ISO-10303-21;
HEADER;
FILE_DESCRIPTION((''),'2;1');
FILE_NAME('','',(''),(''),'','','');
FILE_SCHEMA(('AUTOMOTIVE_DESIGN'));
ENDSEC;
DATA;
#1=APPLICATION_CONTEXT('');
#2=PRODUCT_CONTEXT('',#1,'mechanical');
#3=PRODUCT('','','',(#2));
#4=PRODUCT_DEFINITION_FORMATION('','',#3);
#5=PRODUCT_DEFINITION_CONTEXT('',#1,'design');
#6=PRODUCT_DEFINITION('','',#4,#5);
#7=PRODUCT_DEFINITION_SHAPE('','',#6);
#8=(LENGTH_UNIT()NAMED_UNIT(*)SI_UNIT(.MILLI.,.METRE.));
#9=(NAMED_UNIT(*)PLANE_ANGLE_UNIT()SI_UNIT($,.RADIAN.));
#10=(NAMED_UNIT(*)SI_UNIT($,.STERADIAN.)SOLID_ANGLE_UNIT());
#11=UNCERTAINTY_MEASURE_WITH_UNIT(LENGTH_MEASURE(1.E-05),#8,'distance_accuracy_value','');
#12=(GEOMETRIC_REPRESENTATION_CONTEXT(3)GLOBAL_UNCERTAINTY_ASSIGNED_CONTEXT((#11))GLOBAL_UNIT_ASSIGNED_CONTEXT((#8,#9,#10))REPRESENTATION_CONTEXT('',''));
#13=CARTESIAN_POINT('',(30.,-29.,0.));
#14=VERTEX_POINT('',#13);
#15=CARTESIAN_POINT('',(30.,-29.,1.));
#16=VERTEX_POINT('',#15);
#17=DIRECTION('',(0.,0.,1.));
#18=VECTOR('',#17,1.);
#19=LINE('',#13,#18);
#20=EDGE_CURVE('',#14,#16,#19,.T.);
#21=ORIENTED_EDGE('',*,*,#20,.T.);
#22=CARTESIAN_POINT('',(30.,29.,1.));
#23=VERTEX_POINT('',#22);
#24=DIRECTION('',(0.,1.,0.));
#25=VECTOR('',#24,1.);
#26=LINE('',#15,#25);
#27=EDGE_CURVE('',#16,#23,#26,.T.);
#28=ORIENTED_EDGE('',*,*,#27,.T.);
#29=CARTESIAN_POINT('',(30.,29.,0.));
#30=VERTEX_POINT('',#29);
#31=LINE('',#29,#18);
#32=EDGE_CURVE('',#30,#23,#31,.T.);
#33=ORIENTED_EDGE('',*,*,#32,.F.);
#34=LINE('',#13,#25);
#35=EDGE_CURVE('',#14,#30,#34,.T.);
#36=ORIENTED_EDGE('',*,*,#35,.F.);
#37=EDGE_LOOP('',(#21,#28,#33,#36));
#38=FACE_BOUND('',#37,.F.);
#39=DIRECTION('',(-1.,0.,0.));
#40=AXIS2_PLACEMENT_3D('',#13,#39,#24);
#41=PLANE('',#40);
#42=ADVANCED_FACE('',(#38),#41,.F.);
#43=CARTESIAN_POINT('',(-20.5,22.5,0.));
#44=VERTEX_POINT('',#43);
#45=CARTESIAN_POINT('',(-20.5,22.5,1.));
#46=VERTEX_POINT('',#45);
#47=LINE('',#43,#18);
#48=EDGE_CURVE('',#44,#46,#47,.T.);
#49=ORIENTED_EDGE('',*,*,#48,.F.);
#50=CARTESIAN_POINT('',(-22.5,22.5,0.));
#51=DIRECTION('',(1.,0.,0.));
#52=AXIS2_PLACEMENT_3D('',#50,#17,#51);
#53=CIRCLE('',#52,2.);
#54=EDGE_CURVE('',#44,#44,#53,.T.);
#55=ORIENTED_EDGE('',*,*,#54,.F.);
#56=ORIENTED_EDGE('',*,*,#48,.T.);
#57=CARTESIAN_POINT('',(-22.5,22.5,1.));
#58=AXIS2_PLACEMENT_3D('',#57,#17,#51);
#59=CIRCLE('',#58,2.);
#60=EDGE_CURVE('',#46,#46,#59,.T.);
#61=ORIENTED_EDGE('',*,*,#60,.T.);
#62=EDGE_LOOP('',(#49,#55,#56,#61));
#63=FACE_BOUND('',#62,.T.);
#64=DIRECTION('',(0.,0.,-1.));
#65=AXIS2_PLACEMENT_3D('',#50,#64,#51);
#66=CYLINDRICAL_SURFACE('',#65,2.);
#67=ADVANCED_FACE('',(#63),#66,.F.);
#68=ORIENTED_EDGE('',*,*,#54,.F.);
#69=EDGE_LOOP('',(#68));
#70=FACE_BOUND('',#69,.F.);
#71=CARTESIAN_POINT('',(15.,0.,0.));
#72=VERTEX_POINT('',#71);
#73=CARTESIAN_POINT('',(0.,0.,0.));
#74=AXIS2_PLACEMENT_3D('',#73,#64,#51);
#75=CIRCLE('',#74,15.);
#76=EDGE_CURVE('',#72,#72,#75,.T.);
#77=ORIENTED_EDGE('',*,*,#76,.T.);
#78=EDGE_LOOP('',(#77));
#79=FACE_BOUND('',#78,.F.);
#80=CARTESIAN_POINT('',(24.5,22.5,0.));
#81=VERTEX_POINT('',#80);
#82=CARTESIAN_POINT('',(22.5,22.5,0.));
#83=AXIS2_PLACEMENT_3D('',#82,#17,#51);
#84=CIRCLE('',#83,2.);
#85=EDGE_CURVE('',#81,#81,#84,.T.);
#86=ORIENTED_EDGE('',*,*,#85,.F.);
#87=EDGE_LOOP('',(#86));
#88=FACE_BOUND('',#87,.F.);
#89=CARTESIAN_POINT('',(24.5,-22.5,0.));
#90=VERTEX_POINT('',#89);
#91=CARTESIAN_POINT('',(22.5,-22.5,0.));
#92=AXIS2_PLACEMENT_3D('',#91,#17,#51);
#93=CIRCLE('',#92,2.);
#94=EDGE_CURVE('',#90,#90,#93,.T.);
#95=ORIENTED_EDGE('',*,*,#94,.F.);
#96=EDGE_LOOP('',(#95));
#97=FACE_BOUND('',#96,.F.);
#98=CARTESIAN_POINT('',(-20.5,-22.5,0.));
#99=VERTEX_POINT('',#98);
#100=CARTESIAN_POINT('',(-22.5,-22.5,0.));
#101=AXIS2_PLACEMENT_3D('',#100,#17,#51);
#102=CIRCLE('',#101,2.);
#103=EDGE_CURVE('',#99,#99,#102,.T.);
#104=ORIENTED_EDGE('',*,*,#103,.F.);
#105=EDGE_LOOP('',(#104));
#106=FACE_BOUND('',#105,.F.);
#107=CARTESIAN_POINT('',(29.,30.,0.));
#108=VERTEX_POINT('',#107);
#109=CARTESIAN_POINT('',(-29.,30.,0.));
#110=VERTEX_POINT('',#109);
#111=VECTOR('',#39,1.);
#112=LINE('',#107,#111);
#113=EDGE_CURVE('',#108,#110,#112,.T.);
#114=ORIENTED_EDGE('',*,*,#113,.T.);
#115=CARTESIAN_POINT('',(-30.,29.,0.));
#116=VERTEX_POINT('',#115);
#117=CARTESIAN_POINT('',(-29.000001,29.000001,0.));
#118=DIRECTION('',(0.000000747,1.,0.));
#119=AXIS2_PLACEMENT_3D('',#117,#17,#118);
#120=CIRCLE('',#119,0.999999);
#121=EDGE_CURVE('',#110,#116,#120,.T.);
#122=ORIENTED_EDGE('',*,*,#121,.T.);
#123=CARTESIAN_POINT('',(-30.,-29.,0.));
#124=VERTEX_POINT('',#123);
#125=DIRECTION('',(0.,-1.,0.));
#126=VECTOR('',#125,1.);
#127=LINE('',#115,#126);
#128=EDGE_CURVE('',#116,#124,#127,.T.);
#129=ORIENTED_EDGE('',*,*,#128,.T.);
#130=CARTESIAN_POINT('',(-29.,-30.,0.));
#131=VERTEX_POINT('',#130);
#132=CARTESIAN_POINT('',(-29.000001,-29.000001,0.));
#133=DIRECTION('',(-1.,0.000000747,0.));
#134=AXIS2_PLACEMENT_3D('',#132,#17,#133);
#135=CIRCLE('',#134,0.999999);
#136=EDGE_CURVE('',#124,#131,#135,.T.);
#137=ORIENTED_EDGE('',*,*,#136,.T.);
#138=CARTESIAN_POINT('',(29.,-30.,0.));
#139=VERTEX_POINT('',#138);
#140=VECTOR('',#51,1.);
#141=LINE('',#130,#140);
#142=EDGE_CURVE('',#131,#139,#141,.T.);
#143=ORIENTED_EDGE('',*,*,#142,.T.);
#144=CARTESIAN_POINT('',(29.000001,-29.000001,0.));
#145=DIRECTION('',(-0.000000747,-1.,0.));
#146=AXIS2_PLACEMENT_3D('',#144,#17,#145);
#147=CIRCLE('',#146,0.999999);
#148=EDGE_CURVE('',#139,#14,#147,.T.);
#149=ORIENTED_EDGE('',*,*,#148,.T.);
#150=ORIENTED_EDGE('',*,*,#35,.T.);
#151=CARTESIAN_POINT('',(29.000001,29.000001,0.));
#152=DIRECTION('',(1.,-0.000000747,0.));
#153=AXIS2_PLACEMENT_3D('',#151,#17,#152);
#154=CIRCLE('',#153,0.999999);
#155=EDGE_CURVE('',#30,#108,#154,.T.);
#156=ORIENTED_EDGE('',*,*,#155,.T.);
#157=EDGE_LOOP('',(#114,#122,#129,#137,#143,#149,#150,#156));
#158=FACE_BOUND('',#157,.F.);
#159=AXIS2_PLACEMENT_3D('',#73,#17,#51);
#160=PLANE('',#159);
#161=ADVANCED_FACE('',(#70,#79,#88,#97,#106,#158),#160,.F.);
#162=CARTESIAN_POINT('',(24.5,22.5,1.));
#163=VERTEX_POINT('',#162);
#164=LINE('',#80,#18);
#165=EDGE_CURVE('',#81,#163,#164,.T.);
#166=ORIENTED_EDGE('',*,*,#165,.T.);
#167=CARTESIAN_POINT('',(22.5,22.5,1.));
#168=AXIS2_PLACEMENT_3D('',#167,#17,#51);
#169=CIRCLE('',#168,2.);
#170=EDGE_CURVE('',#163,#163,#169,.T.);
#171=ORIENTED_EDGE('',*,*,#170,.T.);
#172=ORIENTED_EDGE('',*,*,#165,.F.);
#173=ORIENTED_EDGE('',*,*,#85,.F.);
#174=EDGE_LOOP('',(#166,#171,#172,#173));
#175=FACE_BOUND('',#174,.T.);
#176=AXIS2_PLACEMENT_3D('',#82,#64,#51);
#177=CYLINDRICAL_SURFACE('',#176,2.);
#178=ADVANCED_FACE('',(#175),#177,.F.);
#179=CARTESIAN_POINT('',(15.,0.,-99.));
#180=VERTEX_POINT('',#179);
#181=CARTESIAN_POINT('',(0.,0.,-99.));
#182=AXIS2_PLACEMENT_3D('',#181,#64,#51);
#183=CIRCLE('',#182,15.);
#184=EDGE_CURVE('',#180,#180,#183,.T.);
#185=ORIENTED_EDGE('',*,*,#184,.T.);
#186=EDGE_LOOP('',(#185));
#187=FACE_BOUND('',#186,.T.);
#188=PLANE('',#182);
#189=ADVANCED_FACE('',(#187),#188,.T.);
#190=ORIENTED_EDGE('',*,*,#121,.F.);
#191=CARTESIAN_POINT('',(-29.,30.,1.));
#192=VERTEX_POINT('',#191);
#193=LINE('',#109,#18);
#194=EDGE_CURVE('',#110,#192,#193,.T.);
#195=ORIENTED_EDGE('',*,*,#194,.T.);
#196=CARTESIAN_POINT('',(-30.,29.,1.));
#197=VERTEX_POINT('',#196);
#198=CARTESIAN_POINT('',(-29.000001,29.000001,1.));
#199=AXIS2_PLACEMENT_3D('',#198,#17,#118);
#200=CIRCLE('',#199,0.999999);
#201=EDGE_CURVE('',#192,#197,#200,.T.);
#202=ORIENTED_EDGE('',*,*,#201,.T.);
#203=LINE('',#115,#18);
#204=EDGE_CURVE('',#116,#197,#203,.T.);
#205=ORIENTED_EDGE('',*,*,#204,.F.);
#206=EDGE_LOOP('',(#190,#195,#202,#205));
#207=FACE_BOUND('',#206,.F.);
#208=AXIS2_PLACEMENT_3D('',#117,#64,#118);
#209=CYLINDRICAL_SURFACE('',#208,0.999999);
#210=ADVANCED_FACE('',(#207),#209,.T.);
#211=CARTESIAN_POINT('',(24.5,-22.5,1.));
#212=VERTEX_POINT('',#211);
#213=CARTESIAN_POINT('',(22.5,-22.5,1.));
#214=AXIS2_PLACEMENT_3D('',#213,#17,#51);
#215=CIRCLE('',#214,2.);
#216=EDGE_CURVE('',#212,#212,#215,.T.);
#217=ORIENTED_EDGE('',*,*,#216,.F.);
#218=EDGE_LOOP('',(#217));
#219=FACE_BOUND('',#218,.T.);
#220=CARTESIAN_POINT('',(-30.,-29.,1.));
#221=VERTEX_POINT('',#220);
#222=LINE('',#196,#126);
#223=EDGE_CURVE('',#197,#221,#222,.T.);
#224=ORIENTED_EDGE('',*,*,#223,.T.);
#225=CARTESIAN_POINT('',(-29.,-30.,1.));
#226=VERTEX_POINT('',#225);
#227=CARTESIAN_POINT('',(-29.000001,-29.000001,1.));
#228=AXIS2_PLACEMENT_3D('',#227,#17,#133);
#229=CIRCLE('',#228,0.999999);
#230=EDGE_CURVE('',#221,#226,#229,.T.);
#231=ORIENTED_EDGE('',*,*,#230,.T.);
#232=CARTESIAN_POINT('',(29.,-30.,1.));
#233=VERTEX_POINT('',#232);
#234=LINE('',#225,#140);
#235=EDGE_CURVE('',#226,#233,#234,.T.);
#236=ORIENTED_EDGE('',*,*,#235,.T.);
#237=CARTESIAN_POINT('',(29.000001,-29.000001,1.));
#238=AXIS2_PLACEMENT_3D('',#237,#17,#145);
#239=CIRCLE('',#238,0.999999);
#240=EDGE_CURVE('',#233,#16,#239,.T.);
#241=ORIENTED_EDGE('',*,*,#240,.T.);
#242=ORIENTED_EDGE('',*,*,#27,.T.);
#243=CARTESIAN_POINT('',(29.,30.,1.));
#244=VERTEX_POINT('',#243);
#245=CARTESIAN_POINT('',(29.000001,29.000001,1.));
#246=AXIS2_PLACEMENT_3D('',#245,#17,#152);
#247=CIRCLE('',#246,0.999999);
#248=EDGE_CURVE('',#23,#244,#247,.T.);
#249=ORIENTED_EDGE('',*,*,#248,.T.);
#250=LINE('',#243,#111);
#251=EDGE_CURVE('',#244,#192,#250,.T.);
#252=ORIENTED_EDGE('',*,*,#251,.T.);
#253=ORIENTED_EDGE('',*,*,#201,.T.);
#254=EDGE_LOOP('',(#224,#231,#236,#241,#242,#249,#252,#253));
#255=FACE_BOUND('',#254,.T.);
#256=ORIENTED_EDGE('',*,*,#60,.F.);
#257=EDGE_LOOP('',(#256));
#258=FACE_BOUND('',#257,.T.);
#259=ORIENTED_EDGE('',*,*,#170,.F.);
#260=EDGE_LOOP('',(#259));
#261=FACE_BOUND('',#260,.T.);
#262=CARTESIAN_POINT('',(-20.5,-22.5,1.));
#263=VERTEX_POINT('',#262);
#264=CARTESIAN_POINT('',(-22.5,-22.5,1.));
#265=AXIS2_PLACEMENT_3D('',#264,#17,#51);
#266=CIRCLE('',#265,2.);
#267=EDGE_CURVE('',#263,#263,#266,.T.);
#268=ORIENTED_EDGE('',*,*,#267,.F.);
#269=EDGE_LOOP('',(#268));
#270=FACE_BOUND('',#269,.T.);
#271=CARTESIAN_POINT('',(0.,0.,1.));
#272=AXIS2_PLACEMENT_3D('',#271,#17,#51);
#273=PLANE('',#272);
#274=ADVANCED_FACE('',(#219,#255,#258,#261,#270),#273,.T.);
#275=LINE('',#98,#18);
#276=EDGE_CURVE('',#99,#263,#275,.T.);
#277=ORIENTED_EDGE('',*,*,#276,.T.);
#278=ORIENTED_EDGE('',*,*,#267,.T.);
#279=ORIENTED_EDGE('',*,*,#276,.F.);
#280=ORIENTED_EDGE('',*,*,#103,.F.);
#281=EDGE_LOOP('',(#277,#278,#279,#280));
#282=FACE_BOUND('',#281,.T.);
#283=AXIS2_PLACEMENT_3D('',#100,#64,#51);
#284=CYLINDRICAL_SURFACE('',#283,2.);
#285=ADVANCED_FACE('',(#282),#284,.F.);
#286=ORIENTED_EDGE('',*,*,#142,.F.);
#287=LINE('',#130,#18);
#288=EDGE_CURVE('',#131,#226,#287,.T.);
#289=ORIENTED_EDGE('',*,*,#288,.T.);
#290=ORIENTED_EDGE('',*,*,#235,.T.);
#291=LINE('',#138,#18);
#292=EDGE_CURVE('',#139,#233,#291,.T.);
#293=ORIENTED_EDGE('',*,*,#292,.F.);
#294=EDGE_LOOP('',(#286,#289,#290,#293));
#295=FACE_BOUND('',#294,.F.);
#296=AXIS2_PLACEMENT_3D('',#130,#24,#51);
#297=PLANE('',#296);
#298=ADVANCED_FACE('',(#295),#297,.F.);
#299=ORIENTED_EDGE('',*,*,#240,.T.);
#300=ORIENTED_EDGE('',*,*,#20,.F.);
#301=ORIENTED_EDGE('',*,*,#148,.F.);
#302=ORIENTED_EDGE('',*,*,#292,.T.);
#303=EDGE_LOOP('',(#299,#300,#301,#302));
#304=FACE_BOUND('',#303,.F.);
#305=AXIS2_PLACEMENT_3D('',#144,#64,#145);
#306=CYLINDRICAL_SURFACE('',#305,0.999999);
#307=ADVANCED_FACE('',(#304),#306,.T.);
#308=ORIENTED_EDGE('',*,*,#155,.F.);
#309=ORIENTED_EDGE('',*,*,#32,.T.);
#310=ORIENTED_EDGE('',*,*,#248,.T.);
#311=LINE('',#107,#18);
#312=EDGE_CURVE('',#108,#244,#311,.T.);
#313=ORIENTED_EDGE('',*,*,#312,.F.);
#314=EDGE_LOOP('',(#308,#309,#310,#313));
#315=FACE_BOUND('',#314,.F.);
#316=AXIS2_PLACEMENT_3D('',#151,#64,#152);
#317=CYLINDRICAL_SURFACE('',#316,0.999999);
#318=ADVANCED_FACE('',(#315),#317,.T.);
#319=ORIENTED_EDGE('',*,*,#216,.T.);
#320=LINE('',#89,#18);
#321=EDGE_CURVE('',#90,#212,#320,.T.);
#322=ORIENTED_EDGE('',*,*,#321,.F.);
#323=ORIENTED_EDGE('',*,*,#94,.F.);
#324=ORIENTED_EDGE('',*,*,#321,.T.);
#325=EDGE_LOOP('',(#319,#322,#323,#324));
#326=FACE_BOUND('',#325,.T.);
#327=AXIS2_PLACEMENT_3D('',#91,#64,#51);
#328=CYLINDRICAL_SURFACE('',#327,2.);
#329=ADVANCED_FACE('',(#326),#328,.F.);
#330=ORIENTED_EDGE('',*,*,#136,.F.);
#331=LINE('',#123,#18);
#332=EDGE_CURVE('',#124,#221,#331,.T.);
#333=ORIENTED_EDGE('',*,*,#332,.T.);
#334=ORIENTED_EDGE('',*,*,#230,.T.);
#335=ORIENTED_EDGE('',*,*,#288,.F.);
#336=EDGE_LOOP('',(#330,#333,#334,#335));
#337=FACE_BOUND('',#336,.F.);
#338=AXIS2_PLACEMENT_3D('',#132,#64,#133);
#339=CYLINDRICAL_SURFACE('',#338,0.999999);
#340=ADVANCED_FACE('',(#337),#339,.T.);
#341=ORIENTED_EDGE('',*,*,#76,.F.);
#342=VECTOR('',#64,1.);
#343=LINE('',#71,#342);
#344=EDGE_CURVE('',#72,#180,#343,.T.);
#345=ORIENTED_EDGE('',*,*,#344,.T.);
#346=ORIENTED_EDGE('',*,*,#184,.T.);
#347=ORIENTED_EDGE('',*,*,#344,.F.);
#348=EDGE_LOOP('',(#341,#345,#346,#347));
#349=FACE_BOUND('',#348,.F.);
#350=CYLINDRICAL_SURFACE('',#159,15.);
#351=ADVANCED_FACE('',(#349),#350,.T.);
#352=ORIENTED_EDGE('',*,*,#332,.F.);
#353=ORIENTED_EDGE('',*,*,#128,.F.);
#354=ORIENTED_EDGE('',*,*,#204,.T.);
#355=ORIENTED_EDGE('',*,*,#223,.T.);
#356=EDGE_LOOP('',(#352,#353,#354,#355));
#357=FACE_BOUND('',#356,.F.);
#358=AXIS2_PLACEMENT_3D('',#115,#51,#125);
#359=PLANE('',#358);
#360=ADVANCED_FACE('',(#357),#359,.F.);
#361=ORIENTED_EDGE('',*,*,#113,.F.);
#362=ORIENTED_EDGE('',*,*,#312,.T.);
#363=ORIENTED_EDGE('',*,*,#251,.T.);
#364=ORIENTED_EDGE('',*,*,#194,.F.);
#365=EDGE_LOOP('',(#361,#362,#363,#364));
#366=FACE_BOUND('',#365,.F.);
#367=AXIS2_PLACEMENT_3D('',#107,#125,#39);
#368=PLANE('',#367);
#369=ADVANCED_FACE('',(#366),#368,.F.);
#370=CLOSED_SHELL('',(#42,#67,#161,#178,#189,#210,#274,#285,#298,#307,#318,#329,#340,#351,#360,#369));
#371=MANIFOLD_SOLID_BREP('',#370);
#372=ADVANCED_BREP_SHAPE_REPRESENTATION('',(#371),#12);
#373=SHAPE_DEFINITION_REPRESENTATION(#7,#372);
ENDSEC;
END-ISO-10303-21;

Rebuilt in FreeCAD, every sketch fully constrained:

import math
import FreeCAD as App
import Part
import Sketcher
from FreeCAD import Vector

doc = App.newDocument("Part")
body = doc.addObject("PartDesign::Body", "Body")

# Sketch on XY plane
sketch1 = body.newObject("Sketcher::SketchObject", "Sketch")
sketch1.AttachmentSupport = (doc.getObject("XY_Plane"), [""])
sketch1.MapMode = "FlatFace"
sketch1.addGeometry(Part.ArcOfCircle(Part.Circle(Vector(-29, -29, 0), Vector(0, 0, 1), 1), math.radians(180), math.radians(270)), False)
sketch1.addGeometry(Part.LineSegment(Vector(-29, -30, 0), Vector(29, -30, 0)), False)
sketch1.addGeometry(Part.ArcOfCircle(Part.Circle(Vector(29, -29, 0), Vector(0, 0, 1), 1), math.radians(-90), math.radians(0)), False)
sketch1.addGeometry(Part.LineSegment(Vector(30, -29, 0), Vector(30, 29, 0)), False)
sketch1.addGeometry(Part.ArcOfCircle(Part.Circle(Vector(29, 29, 0), Vector(0, 0, 1), 1), math.radians(0), math.radians(90)), False)
sketch1.addGeometry(Part.LineSegment(Vector(29, 30, 0), Vector(-29, 30, 0)), False)
sketch1.addGeometry(Part.ArcOfCircle(Part.Circle(Vector(-29, 29, 0), Vector(0, 0, 1), 1), math.radians(90), math.radians(180)), False)
sketch1.addGeometry(Part.LineSegment(Vector(-30, 29, 0), Vector(-30, -29, 0)), False)
sketch1.addGeometry(Part.Circle(Vector(-22.5, -22.5, 0), Vector(0, 0, 1), 2), False)
sketch1.addGeometry(Part.Circle(Vector(22.5, -22.5, 0), Vector(0, 0, 1), 2), False)
sketch1.addGeometry(Part.Circle(Vector(-22.5, 22.5, 0), Vector(0, 0, 1), 2), False)
sketch1.addGeometry(Part.Circle(Vector(22.5, 22.5, 0), Vector(0, 0, 1), 2), False)
sketch1.addConstraint(Sketcher.Constraint("Tangent", 0, 2, 1, 1))
sketch1.addConstraint(Sketcher.Constraint("Tangent", 1, 2, 2, 1))
sketch1.addConstraint(Sketcher.Constraint("Tangent", 2, 2, 3, 1))
sketch1.addConstraint(Sketcher.Constraint("Tangent", 3, 2, 4, 1))
sketch1.addConstraint(Sketcher.Constraint("Tangent", 4, 2, 5, 1))
sketch1.addConstraint(Sketcher.Constraint("Tangent", 5, 2, 6, 1))
sketch1.addConstraint(Sketcher.Constraint("Tangent", 6, 2, 7, 1))
sketch1.addConstraint(Sketcher.Constraint("Tangent", 7, 2, 0, 1))
sketch1.addConstraint(Sketcher.Constraint("Horizontal", 1))
sketch1.addConstraint(Sketcher.Constraint("Vertical", 3))
sketch1.addConstraint(Sketcher.Constraint("Horizontal", 5))
sketch1.addConstraint(Sketcher.Constraint("Vertical", 7))
sketch1.addConstraint(Sketcher.Constraint("Equal", 0, 2))
sketch1.addConstraint(Sketcher.Constraint("Equal", 2, 4))
sketch1.addConstraint(Sketcher.Constraint("Equal", 4, 6))
sketch1.addConstraint(Sketcher.Constraint("Equal", 8, 9))
sketch1.addConstraint(Sketcher.Constraint("Equal", 9, 10))
sketch1.addConstraint(Sketcher.Constraint("Equal", 10, 11))
sketch1.addConstraint(Sketcher.Constraint("Symmetric", 0, 3, 4, 3, -1, 1))
sketch1.addConstraint(Sketcher.Constraint("Symmetric", 9, 3, 10, 3, -1, 1))
sketch1.addConstraint(Sketcher.Constraint("Symmetric", 8, 3, 11, 3, -1, 1))
sketch1.addConstraint(Sketcher.Constraint("Symmetric", 8, 3, 9, 3, -2))
sketch1.addConstraint(Sketcher.Constraint("Equal", 5, 3))
sketch1.addConstraint(Sketcher.Constraint("Diameter", 8, 4.0))
sketch1.addConstraint(Sketcher.Constraint("Radius", 0, 0.999999))
sketch1.addConstraint(Sketcher.Constraint("DistanceX", 1, 1, 1, 2, 58.0))
sketch1.addConstraint(Sketcher.Constraint("DistanceX", 8, 3, 9, 3, 45.0))
sketch1.addConstraint(Sketcher.Constraint("DistanceY", 8, 3, 10, 3, 45.0))
pad1 = body.newObject("PartDesign::Pad", "Pad")
pad1.Profile = sketch1
pad1.Length = 1

# Sketch on XY plane
sketch2 = body.newObject("Sketcher::SketchObject", "Sketch001")
sketch2.AttachmentSupport = (doc.getObject("XY_Plane"), [""])
sketch2.MapMode = "FlatFace"
sketch2.addGeometry(Part.Circle(Vector(0, 0, 0), Vector(0, 0, 1), 15), False)
sketch2.addConstraint(Sketcher.Constraint("Coincident", 0, 3, -1, 1))
sketch2.addConstraint(Sketcher.Constraint("Diameter", 0, 30.0))
pad2 = body.newObject("PartDesign::Pad", "Pad001")
pad2.Profile = sketch2
pad2.Length = 99
pad2.Reversed = True

doc.recompute()
